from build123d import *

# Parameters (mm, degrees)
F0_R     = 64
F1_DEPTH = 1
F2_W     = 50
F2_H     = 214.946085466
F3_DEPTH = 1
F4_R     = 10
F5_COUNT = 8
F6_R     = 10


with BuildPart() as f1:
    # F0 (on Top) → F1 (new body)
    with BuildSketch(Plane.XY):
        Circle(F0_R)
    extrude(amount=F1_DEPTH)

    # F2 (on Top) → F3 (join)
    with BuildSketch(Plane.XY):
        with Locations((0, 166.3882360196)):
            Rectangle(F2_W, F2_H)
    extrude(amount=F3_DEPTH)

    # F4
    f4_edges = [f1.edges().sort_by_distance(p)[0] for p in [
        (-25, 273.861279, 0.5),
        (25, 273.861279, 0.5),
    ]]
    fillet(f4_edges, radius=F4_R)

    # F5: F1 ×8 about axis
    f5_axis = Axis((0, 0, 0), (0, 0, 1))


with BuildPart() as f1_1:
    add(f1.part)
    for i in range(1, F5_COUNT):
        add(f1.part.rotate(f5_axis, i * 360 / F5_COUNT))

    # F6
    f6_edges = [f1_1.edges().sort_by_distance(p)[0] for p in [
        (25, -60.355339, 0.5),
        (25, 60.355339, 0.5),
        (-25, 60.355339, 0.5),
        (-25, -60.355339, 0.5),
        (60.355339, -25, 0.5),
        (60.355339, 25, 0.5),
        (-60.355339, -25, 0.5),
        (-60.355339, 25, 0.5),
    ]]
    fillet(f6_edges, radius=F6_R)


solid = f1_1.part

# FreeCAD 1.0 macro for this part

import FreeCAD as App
import Part
import Sketcher

V = App.Vector


def edges_at(feature, points):
    """Names of the edges that pass closest to the given points."""
    edges = feature.Shape.Edges
    near = lambda p: min(range(len(edges)), key=lambda i: edges[i].distToShape(Part.Vertex(*p))[0])
    return sorted({f"Edge{near(p) + 1}" for p in points})


def add_polygon(sketch, points):
    """Adds a closed chain of lines whose ends are joined by coincident constraints."""
    first, n = sketch.GeometryCount, len(points)
    for a, b in zip(points, points[1:] + points[:1]):
        sketch.addGeometry(Part.LineSegment(App.Vector(*a, 0), App.Vector(*b, 0)), False)
    for i in range(n):
        sketch.addConstraint(Sketcher.Constraint("Coincident", first + i, 2, first + (i + 1) % n, 1))

doc = App.newDocument("Part")
body = doc.addObject("PartDesign::Body", "Body")

# Sketch on XY plane
sketch1 = body.newObject("Sketcher::SketchObject", "Sketch")
sketch1.AttachmentSupport = (doc.getObject("XY_Plane"), [""])
sketch1.MapMode = "FlatFace"
sketch1.addGeometry(Part.Circle(V(0, 0, 0), V(0, 0, 1), 64), False)
sketch1.addConstraint([
    Sketcher.Constraint("Coincident", 0, 3, -1, 1),
    Sketcher.Constraint("Diameter", 0, 128.0),
])
pad1 = body.newObject("PartDesign::Pad", "Pad")
pad1.Profile = sketch1
pad1.Length = 1

# Sketch on XY plane
sketch2 = body.newObject("Sketcher::SketchObject", "Sketch001")
sketch2.AttachmentSupport = (doc.getObject("XY_Plane"), [""])
sketch2.MapMode = "FlatFace"
add_polygon(sketch2, [(-25, 274), (-25, 59), (25, 59), (25, 274)])  # lines 0-3
sketch2.addConstraint([
    Sketcher.Constraint("Vertical", 0),
    Sketcher.Constraint("Horizontal", 1),
    Sketcher.Constraint("Vertical", 2),
    Sketcher.Constraint("Horizontal", 3),
    Sketcher.Constraint("DistanceX", 1, 1, 1, 2, 50.0),
    Sketcher.Constraint("DistanceX", 0, 2, -1, 1, 25.0),
    Sketcher.Constraint("DistanceY", 0, 2, 0, 1, 214.946085),
    Sketcher.Constraint("DistanceY", -1, 1, 2, 2, 273.861279),
])
pad2 = body.newObject("PartDesign::Pad", "Pad001")
pad2.Profile = sketch2
pad2.Length = 1
doc.recompute()

fillet = body.newObject("PartDesign::Fillet", "Fillet")
fillet.Base = (pad2, edges_at(pad2, [(-25, 273.861, 0.5), (25, 273.861, 0.5)]))
fillet.Radius = 10
body2 = doc.addObject("PartDesign::Body", "Body001")
doc.recompute()

body2.BaseFeature = body
doc.recompute()

body3 = doc.addObject("PartDesign::Body", "Body002")
body3.BaseFeature = body
body3.Placement = App.Placement(V(0, 0, 0), App.Rotation(V(0, 0, 1), 45))
boolean = body2.newObject("PartDesign::Boolean", "Boolean")
boolean.Type = "Fuse"
boolean.addObjects([body3])
doc.recompute()

body4 = doc.addObject("PartDesign::Body", "Body003")
body4.BaseFeature = body
body4.Placement = App.Placement(V(0, 0, 0), App.Rotation(V(0, 0, 1), 90))
boolean2 = body2.newObject("PartDesign::Boolean", "Boolean001")
boolean2.Type = "Fuse"
boolean2.addObjects([body4])
doc.recompute()

body5 = doc.addObject("PartDesign::Body", "Body004")
body5.BaseFeature = body
body5.Placement = App.Placement(V(0, 0, 0), App.Rotation(V(0, 0, 1), 135))
boolean3 = body2.newObject("PartDesign::Boolean", "Boolean002")
boolean3.Type = "Fuse"
boolean3.addObjects([body5])
doc.recompute()

body6 = doc.addObject("PartDesign::Body", "Body005")
body6.BaseFeature = body
body6.Placement = App.Placement(V(0, 0, 0), App.Rotation(V(0, 0, 1), 180))
boolean4 = body2.newObject("PartDesign::Boolean", "Boolean003")
boolean4.Type = "Fuse"
boolean4.addObjects([body6])
doc.recompute()

body7 = doc.addObject("PartDesign::Body", "Body006")
body7.BaseFeature = body
body7.Placement = App.Placement(V(0, 0, 0), App.Rotation(V(0, 0, 1), 225))
boolean5 = body2.newObject("PartDesign::Boolean", "Boolean004")
boolean5.Type = "Fuse"
boolean5.addObjects([body7])
doc.recompute()

body8 = doc.addObject("PartDesign::Body", "Body007")
body8.BaseFeature = body
body8.Placement = App.Placement(V(0, 0, 0), App.Rotation(V(0, 0, 1), 270))
boolean6 = body2.newObject("PartDesign::Boolean", "Boolean005")
boolean6.Type = "Fuse"
boolean6.addObjects([body8])
doc.recompute()

body.Placement = App.Placement(V(0, 0, 0), App.Rotation(V(0, 0, 1), 315))
boolean7 = body2.newObject("PartDesign::Boolean", "Boolean006")
boolean7.Type = "Fuse"
boolean7.addObjects([body])
doc.recompute()

fillet2 = body2.newObject("PartDesign::Fillet", "Fillet001")
fillet2.Base = (boolean7, edges_at(boolean7, [
    (25, -60.355, 0.5),
    (25, 60.355, 0.5),
    (-25, 60.355, 0.5),
    (-25, -60.355, 0.5),
    (60.355, -25, 0.5),
    (60.355, 25, 0.5),
    (-60.355, -25, 0.5),
    (-60.355, 25, 0.5),
]))
fillet2.Radius = 10

doc.recompute()
